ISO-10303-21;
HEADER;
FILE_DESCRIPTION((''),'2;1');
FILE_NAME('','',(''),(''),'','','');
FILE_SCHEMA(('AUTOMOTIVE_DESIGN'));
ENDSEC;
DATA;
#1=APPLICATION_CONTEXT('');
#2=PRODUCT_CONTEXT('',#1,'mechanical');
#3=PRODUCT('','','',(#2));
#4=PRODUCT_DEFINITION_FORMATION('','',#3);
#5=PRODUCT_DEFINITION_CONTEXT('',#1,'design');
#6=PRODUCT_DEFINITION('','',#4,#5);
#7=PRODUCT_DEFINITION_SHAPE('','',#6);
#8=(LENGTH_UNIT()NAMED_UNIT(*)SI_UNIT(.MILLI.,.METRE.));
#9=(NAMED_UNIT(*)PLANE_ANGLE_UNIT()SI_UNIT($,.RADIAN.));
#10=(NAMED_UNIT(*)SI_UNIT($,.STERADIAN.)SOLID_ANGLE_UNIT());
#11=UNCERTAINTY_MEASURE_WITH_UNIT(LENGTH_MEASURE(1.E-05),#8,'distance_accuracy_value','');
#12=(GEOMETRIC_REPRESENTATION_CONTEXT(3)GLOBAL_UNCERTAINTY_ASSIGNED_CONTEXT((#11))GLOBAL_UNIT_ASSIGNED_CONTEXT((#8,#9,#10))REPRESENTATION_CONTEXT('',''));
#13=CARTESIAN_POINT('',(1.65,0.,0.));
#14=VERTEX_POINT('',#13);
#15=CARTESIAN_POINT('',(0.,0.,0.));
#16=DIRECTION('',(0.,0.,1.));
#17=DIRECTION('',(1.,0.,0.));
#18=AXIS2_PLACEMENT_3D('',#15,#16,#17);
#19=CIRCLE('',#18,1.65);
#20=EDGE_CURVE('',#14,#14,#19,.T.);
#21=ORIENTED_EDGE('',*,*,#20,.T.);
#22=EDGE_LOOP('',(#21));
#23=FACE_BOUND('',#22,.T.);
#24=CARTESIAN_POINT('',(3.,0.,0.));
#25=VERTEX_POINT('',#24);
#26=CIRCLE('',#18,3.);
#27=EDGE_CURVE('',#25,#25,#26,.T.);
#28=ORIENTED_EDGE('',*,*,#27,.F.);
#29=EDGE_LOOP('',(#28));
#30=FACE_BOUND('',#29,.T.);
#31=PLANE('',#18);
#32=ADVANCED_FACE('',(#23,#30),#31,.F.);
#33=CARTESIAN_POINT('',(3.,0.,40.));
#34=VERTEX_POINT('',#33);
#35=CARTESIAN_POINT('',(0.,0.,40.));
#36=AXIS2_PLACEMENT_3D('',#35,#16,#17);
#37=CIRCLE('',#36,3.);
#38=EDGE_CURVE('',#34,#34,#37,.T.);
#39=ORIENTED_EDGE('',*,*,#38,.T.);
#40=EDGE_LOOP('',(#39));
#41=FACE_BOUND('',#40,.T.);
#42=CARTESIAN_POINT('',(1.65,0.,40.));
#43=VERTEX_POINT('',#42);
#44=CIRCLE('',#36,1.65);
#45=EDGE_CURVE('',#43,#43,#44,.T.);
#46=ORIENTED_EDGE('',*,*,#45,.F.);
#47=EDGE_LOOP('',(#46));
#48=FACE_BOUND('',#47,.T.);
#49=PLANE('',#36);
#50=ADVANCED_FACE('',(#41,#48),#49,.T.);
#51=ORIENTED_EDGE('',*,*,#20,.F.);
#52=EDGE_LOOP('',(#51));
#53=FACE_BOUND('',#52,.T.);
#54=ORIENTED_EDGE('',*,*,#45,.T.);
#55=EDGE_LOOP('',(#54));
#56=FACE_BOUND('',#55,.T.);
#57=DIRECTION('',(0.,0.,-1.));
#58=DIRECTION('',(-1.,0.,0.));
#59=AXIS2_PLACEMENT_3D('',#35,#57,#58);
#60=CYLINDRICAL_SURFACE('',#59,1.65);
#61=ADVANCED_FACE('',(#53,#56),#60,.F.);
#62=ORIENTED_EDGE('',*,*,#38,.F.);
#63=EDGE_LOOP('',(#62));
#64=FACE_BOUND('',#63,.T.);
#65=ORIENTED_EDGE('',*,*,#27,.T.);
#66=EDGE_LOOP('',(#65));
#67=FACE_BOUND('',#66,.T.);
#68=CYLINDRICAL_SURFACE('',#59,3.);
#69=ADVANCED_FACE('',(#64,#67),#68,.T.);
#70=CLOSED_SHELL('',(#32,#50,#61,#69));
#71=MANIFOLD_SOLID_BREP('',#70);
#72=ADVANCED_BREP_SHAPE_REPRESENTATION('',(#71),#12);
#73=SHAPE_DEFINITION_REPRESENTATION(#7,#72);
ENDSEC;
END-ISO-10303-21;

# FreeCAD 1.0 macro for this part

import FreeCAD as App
import Part
import Sketcher

V = App.Vector
Q = App.Units.Quantity

doc = App.newDocument("Part")
body = doc.addObject("PartDesign::Body", "Body")

sketch1 = body.newObject("Sketcher::SketchObject", "Sketch")
sketch1.AttachmentSupport = (doc.getObject("XY_Plane"), [""])
sketch1.MapMode = "FlatFace"
sketch1.addGeometry([
    Part.Circle(V(0, 0, 0), V(0, 0, 1), 3),
    Part.Circle(V(0, 0, 0), V(0, 0, 1), 1.65),
], False)
sketch1.addConstraint([
    Sketcher.Constraint("Coincident", 0, 3, -1, 1),
    Sketcher.Constraint("Coincident", 1, 3, -1, 1),
    Sketcher.Constraint("Diameter", 0, Q("6 mm")),
    Sketcher.Constraint("Diameter", 1, Q("3.3 mm")),
])
pad1 = body.newObject("PartDesign::Pad", "Pad")
pad1.Profile = sketch1
pad1.Length = 40

doc.recompute()
